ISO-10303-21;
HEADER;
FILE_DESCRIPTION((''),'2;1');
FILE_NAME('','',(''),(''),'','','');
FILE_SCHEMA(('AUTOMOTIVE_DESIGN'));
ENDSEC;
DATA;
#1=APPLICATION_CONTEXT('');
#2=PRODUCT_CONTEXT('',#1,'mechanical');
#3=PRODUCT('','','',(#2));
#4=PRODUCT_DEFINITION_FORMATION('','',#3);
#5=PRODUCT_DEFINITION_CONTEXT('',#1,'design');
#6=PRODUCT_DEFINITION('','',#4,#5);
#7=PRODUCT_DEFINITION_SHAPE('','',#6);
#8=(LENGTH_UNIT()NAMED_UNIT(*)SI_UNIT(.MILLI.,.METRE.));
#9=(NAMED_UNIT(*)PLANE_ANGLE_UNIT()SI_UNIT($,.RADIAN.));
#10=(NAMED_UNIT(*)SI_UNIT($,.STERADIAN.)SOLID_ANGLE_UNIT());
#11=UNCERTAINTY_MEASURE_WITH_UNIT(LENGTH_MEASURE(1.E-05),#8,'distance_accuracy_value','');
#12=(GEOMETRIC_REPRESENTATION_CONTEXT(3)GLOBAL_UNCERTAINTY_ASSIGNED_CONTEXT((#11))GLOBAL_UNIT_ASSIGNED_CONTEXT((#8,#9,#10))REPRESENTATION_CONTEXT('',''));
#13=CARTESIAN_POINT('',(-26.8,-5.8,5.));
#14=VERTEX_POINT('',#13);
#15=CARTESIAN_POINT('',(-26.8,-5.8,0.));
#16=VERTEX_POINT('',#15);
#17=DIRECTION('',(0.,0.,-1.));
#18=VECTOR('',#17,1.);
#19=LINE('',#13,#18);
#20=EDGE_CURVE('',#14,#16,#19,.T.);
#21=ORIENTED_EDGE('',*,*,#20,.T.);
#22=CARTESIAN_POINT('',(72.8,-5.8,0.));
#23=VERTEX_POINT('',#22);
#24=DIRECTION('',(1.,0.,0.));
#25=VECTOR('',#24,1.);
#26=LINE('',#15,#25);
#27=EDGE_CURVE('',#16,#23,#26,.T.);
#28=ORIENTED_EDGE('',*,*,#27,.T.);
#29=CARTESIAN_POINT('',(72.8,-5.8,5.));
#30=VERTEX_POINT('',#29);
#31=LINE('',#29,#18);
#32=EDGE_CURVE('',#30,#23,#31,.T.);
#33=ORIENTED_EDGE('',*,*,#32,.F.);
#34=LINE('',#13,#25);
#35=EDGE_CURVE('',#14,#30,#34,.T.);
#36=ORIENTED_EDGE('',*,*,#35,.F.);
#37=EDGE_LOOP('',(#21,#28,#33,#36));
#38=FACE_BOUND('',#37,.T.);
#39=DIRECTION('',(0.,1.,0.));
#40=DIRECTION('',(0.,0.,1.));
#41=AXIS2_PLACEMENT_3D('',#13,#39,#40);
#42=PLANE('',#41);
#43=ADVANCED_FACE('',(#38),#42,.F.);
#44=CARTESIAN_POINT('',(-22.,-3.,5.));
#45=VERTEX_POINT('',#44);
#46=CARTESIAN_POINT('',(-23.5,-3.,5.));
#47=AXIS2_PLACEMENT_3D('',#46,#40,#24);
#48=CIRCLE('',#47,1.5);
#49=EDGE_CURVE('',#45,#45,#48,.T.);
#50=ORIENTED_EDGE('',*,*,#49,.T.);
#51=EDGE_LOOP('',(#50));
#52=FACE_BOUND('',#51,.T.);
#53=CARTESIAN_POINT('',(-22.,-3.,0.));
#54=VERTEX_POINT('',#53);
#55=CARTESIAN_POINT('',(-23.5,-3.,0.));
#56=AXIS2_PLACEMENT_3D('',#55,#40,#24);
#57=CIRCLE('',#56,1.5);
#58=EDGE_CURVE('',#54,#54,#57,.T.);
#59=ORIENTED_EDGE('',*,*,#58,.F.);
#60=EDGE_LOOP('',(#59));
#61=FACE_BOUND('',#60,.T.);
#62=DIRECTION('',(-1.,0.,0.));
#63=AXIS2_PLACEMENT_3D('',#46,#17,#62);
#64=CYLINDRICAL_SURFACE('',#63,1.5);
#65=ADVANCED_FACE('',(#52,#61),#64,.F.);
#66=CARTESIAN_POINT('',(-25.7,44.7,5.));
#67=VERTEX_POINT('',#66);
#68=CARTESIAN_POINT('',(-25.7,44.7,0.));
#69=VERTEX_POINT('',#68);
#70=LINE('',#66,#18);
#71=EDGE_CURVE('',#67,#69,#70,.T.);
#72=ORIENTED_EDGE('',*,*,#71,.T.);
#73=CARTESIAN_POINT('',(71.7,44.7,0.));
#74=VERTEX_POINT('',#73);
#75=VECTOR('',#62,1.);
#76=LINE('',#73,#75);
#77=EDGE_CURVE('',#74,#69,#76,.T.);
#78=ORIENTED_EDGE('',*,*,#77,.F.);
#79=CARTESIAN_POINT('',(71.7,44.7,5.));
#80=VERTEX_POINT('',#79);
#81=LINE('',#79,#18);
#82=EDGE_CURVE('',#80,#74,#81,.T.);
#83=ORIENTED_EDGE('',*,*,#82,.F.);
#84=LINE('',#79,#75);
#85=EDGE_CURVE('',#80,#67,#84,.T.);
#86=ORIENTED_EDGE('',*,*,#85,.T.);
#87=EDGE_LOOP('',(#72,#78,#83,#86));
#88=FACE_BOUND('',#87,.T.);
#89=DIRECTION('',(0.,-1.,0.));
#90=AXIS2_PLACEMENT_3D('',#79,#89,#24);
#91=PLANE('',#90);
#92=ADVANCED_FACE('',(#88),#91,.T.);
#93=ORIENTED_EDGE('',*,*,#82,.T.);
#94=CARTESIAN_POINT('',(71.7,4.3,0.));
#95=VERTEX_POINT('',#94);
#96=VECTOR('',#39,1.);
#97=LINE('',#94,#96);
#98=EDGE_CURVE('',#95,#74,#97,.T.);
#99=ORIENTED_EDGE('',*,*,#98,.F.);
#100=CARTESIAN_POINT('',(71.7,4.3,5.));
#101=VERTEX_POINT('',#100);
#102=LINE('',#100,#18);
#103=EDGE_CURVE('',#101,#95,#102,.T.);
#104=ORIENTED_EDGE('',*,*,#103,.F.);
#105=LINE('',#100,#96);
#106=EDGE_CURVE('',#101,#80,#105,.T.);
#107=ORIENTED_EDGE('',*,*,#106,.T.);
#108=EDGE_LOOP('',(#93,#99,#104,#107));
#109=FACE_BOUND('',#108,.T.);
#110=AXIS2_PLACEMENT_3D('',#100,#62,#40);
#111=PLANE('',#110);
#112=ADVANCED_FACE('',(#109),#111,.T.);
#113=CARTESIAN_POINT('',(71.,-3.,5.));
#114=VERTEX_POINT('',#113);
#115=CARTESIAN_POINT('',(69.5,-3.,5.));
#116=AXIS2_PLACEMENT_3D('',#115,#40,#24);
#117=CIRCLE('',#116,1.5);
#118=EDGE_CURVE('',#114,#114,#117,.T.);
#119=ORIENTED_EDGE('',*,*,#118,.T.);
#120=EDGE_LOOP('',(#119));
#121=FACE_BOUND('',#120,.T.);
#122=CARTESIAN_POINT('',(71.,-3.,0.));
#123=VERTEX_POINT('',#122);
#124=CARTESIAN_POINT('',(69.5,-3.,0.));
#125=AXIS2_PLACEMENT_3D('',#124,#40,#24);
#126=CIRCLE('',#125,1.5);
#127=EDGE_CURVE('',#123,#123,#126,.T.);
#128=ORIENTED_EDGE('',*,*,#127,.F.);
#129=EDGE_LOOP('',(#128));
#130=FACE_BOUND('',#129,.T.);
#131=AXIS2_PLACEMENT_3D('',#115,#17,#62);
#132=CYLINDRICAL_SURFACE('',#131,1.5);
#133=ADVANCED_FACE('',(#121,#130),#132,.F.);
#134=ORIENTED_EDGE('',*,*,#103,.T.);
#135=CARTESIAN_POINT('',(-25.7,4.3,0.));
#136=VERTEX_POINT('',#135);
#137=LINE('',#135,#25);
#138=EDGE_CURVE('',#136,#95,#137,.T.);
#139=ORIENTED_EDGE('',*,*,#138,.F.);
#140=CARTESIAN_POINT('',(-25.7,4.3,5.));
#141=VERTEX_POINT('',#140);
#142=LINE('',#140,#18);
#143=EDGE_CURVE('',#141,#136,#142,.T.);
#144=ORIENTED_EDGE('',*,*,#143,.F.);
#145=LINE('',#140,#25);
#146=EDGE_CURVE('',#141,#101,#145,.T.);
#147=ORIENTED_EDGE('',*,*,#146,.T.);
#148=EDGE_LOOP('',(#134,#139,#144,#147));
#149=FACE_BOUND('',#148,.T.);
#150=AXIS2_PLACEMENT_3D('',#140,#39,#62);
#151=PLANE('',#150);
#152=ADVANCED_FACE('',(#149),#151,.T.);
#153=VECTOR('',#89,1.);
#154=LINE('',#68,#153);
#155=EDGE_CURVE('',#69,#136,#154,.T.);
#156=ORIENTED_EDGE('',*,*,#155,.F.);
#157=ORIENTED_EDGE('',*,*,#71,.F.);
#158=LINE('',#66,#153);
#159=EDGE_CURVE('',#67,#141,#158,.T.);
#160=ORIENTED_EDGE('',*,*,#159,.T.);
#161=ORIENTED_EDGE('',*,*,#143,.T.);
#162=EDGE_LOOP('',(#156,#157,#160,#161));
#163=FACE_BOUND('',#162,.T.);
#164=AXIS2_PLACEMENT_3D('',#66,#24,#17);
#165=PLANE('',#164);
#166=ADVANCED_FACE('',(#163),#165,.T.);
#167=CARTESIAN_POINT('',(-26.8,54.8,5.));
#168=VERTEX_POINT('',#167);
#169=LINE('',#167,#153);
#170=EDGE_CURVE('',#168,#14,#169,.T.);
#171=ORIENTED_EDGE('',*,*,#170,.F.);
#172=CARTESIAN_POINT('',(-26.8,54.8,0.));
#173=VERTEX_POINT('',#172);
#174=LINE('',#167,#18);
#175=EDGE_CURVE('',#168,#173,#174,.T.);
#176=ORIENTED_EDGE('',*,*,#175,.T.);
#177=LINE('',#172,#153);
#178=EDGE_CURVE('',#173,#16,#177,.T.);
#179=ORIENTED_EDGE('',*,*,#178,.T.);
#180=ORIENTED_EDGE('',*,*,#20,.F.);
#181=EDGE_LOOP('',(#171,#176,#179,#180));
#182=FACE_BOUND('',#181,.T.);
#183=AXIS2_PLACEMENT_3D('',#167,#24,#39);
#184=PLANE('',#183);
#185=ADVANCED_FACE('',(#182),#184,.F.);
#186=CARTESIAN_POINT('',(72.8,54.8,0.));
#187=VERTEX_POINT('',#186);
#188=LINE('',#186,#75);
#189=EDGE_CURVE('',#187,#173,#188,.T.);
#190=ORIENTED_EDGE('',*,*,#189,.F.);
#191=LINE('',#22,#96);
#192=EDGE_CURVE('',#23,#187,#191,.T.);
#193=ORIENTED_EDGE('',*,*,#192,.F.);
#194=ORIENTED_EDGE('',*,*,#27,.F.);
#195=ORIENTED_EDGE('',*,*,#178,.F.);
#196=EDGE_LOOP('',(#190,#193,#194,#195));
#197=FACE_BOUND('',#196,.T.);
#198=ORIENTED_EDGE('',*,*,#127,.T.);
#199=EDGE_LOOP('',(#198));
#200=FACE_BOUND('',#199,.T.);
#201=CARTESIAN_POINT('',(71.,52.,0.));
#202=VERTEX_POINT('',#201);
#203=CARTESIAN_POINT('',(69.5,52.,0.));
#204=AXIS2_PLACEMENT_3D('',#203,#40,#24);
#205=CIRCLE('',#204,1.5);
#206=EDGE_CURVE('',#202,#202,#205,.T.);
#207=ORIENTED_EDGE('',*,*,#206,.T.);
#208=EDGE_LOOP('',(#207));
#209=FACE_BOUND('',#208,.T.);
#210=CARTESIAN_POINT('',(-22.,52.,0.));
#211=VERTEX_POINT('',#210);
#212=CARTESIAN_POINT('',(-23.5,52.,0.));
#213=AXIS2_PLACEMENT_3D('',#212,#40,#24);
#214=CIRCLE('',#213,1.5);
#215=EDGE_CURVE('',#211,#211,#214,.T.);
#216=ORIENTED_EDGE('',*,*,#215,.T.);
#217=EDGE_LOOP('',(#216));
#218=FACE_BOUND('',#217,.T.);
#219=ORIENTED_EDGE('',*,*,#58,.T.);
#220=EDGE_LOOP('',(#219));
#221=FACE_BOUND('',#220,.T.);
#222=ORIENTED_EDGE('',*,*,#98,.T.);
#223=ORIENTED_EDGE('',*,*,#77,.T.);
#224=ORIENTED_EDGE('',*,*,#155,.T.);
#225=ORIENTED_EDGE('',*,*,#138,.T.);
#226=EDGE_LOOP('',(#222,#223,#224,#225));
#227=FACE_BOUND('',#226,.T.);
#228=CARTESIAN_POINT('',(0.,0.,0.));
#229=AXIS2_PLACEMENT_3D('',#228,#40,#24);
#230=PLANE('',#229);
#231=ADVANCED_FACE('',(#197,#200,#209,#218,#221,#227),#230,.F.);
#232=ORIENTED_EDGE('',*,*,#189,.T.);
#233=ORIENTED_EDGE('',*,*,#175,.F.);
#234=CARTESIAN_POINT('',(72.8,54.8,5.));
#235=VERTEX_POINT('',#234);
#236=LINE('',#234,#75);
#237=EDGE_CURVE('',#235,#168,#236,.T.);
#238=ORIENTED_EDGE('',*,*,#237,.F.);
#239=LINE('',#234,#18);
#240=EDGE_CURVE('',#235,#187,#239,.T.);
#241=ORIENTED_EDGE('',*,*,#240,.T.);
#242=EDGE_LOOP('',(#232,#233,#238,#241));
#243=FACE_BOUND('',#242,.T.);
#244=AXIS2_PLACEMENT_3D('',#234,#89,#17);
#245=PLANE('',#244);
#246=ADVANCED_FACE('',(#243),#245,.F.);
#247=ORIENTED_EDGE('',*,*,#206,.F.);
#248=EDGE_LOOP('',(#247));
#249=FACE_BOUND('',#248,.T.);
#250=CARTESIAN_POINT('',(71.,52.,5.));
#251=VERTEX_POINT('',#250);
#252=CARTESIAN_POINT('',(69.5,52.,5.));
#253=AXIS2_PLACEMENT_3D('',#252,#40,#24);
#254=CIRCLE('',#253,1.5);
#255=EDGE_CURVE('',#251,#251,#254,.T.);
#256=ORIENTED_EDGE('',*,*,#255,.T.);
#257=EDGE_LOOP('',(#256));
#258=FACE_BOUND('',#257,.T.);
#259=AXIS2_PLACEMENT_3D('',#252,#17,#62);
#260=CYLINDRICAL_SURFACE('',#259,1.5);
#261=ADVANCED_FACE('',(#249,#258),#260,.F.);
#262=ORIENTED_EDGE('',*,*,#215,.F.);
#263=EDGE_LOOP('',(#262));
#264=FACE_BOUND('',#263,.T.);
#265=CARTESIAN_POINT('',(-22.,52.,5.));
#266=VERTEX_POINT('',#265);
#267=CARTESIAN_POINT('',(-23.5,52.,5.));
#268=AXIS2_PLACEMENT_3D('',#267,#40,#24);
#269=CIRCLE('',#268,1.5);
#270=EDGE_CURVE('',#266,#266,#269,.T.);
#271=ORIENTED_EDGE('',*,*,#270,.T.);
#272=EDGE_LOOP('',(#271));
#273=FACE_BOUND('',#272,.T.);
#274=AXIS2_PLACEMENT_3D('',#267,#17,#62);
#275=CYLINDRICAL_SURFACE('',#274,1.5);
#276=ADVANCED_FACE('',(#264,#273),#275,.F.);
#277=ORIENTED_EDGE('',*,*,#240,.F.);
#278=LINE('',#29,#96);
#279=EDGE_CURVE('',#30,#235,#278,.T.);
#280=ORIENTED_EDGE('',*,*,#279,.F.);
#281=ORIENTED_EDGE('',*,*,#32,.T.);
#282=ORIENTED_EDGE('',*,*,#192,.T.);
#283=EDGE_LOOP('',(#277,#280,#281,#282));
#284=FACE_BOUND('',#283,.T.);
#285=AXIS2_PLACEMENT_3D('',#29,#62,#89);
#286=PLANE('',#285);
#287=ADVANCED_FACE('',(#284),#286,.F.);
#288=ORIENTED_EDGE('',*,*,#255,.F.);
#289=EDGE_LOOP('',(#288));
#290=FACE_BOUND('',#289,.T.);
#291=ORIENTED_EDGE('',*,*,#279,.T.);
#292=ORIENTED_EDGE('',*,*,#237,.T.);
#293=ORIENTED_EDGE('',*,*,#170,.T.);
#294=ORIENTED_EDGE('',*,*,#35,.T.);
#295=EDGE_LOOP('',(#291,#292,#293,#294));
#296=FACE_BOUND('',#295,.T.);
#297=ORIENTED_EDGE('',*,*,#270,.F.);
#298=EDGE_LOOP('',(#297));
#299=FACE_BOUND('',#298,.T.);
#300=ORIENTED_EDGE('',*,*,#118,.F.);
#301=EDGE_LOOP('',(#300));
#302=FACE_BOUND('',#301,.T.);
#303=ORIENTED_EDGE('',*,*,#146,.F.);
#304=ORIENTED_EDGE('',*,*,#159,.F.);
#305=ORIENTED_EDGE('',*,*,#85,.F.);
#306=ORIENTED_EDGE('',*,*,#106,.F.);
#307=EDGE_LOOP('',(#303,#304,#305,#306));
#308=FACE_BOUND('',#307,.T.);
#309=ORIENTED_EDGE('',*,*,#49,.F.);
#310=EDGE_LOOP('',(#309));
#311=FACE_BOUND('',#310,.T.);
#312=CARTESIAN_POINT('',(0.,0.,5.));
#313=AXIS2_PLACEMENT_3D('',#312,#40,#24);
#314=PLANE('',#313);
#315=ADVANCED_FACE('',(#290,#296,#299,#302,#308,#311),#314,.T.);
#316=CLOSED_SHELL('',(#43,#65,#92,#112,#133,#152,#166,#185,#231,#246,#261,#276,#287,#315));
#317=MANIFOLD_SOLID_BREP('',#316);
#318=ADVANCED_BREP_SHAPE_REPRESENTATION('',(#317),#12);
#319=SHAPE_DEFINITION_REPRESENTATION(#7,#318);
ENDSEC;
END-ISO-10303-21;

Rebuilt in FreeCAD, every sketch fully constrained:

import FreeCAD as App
import Part
import Sketcher
Q = App.Units.Quantity


def add_polygon(sketch, points):
    """Adds a closed chain of lines whose ends are joined by coincident constraints."""
    first, n = sketch.GeometryCount, len(points)
    for a, b in zip(points, points[1:] + points[:1]):
        sketch.addGeometry(Part.LineSegment(App.Vector(*a, 0), App.Vector(*b, 0)), False)
    for i in range(n):
        sketch.addConstraint(Sketcher.Constraint("Coincident", first + i, 2, first + (i + 1) % n, 1))

doc = App.newDocument("Part")
body = doc.addObject("PartDesign::Body", "Body")

# Sketch on XY plane
sketch1 = body.newObject("Sketcher::SketchObject", "Sketch")
sketch1.AttachmentSupport = (doc.getObject("XY_Plane"), [""])
sketch1.MapMode = "FlatFace"
add_polygon(sketch1, [(-26.8, 54.8), (-26.8, -5.8), (72.8, -5.8), (72.8, 54.8)])  # lines 0-3
sketch1.addGeometry(Part.Circle(App.Vector(-23.5, -3, 0), App.Vector(0, 0, 1), 1.5), False)  # 4
sketch1.addGeometry(Part.Circle(App.Vector(69.5, -3, 0), App.Vector(0, 0, 1), 1.5), False)  # 5
sketch1.addGeometry(Part.Circle(App.Vector(-23.5, 52, 0), App.Vector(0, 0, 1), 1.5), False)  # 6
add_polygon(sketch1, [(71.7, 4.3), (-25.7, 4.3), (-25.7, 44.7), (71.7, 44.7)])  # lines 7-10
sketch1.addGeometry(Part.Circle(App.Vector(69.5, 52, 0), App.Vector(0, 0, 1), 1.5), False)  # 11
sketch1.addConstraint([
    Sketcher.Constraint("Vertical", 0),
    Sketcher.Constraint("Horizontal", 1),
    Sketcher.Constraint("Vertical", 2),
    Sketcher.Constraint("Horizontal", 3),
    Sketcher.Constraint("Horizontal", 7),
    Sketcher.Constraint("Vertical", 8),
    Sketcher.Constraint("Horizontal", 9),
    Sketcher.Constraint("Vertical", 10),
    Sketcher.Constraint("Equal", 4, 5),
    Sketcher.Constraint("Equal", 5, 6),
    Sketcher.Constraint("Equal", 6, 11),
    Sketcher.Constraint("Horizontal", 4, 3, 5, 3),
    Sketcher.Constraint("Horizontal", 6, 3, 11, 3),
    Sketcher.Constraint("Vertical", 4, 3, 6, 3),
    Sketcher.Constraint("Vertical", 5, 3, 11, 3),
    Sketcher.Constraint("Diameter", 4, Q("3 mm")),
    Sketcher.Constraint("DistanceX", 1, 1, 1, 2, Q("99.6 mm")),
    Sketcher.Constraint("DistanceX", 7, 2, 7, 1, Q("97.4 mm")),
    Sketcher.Constraint("DistanceY", 0, 2, 0, 1, Q("60.6 mm")),
    Sketcher.Constraint("DistanceY", 8, 1, 8, 2, Q("40.4 mm")),
    Sketcher.Constraint("DistanceY", 4, 3, -1, 1, Q("3 mm")),
    Sketcher.Constraint("DistanceY", -1, 1, 6, 3, Q("52 mm")),
    Sketcher.Constraint("DistanceX", 4, 3, 5, 3, Q("93 mm")),
    Sketcher.Constraint("DistanceX", 4, 3, -1, 1, Q("23.5 mm")),
    Sketcher.Constraint("DistanceX", 0, 2, -1, 1, Q("26.8 mm")),
    Sketcher.Constraint("DistanceY", 0, 2, -1, 1, Q("5.8 mm")),
    Sketcher.Constraint("DistanceX", 7, 2, -1, 1, Q("25.7 mm")),
    Sketcher.Constraint("DistanceY", -1, 1, 7, 2, Q("4.3 mm")),
])
pad1 = body.newObject("PartDesign::Pad", "Pad")
pad1.Profile = sketch1
pad1.Length = 5

doc.recompute()
